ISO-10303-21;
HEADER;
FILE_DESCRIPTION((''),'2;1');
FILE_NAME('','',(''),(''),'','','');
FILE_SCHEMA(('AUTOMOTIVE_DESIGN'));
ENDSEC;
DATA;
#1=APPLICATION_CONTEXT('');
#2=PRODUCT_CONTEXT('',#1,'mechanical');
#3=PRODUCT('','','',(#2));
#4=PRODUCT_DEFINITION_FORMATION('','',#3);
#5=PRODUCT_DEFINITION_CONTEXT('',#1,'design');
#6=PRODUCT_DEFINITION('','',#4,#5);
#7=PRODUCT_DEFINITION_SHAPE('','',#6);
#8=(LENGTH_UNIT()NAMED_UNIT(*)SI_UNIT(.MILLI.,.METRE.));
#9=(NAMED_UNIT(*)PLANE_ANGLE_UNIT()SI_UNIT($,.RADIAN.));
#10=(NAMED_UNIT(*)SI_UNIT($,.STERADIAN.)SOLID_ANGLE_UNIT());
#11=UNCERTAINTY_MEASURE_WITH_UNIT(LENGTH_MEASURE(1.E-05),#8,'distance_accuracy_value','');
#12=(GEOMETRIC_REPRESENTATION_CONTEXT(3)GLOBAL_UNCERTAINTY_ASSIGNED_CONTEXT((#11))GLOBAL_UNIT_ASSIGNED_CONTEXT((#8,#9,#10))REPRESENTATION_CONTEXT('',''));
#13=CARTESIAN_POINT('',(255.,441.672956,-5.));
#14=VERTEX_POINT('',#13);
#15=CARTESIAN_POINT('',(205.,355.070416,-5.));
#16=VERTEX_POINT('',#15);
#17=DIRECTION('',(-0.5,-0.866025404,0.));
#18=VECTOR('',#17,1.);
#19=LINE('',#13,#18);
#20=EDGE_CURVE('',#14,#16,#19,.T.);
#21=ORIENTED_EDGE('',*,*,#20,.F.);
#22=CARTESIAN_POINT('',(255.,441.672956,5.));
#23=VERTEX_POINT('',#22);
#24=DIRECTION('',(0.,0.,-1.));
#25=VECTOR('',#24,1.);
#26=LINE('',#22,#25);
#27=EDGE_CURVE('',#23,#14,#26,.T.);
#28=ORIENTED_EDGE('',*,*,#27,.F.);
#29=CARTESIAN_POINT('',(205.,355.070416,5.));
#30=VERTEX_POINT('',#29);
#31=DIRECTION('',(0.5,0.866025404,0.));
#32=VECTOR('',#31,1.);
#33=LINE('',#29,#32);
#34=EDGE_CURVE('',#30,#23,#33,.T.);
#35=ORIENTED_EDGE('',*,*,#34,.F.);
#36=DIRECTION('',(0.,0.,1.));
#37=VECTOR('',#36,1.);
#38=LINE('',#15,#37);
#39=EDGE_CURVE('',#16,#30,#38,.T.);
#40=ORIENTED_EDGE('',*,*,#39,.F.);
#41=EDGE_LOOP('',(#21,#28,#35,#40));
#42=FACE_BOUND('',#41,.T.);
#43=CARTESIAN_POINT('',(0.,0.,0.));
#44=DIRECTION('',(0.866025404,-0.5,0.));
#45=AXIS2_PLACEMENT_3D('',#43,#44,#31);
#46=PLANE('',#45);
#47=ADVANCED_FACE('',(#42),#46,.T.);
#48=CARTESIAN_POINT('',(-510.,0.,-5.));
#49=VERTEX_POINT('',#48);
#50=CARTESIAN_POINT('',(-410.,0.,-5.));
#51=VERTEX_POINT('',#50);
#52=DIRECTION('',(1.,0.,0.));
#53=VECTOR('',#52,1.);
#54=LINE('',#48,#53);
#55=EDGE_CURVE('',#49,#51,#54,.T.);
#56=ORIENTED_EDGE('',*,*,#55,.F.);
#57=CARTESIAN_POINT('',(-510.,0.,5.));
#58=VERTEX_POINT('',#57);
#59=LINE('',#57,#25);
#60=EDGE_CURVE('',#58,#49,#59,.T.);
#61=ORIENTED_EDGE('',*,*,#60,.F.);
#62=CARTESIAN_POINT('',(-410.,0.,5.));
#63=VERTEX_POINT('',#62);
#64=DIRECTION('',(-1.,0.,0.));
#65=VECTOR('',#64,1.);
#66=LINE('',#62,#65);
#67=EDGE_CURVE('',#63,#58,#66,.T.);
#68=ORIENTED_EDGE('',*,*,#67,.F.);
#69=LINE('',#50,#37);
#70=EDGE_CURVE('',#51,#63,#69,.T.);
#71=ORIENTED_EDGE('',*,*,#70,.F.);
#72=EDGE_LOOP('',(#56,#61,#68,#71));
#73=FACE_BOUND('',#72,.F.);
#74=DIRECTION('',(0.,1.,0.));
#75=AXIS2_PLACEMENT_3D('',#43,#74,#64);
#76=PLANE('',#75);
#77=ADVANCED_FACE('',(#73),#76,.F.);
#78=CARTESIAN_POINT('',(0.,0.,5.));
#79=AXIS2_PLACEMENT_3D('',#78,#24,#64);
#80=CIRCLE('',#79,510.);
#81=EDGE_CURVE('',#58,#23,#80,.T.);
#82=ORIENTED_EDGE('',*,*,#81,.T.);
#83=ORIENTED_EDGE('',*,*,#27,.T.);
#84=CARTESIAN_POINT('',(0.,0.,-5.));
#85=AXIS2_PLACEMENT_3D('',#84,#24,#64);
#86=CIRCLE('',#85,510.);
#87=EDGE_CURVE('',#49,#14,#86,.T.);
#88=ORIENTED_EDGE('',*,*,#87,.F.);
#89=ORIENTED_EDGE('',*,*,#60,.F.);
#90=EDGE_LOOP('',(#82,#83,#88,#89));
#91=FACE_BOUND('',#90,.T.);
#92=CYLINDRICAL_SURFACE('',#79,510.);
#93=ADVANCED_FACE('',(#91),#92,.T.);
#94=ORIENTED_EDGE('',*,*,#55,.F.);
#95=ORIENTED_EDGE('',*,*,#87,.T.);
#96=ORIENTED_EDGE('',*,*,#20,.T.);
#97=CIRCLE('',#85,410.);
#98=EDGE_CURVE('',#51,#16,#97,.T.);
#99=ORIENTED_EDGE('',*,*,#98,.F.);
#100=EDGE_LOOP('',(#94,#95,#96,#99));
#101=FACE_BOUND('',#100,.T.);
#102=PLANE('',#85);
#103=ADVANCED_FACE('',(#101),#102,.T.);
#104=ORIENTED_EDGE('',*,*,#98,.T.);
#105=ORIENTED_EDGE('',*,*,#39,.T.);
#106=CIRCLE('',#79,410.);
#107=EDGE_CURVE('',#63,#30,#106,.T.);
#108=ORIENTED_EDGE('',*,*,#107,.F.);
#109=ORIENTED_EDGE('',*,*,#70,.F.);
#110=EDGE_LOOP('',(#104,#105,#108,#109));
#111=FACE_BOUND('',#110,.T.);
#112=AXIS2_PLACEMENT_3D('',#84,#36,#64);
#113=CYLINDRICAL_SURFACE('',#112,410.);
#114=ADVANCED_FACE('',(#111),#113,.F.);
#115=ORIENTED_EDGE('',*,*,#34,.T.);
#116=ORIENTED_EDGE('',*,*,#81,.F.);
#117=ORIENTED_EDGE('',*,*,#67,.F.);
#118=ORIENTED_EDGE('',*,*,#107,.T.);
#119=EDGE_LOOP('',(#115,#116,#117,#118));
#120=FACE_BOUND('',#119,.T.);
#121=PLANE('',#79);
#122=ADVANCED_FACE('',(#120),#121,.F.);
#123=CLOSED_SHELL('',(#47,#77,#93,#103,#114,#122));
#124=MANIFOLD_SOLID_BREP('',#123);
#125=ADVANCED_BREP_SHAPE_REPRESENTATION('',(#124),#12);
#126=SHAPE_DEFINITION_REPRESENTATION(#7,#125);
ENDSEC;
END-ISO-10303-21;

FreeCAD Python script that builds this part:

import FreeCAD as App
import Part
import Sketcher
from FreeCAD import Vector
Q = App.Units.Quantity

doc = App.newDocument("Part")
params = doc.addObject("Spreadsheet::Sheet", "Params")
for row, (alias, value) in enumerate([
    ("sketch1_width", "3.937 in"),
    ("revolution_angle", "120 deg"),
], start=1):
    params.set(f"A{row}", alias)
    params.set(f"B{row}", "=" + value)
    params.setAlias(f"B{row}", alias)

body = doc.addObject("PartDesign::Body", "Body")

# Sketch on XZ plane
sketch1 = doc.addObject("Sketcher::SketchObject", "Sketch")
body.addObject(sketch1)
sketch1.AttachmentSupport = (doc.XZ_Plane, [""])
sketch1.MapMode = "FlatFace"
sketch1.addGeometry([
    Part.LineSegment(Vector(-510, 5, 0), Vector(-410, 5, 0)),
    Part.LineSegment(Vector(-410, 5, 0), Vector(-410, -5, 0)),
    Part.LineSegment(Vector(-410, -5, 0), Vector(-510, -5, 0)),
    Part.LineSegment(Vector(-510, -5, 0), Vector(-510, 5, 0)),
], False)
sketch1.addConstraint([
    Sketcher.Constraint("Coincident", 0, 2, 1, 1),
    Sketcher.Constraint("Coincident", 1, 2, 2, 1),
    Sketcher.Constraint("Coincident", 2, 2, 3, 1),
    Sketcher.Constraint("Coincident", 3, 2, 0, 1),
    Sketcher.Constraint("Horizontal", 0),
    Sketcher.Constraint("Vertical", 1),
    Sketcher.Constraint("Horizontal", 2),
    Sketcher.Constraint("Vertical", 3),
    Sketcher.Constraint("DistanceX", 0, 1, 0, 2, Q("3.937 in")),
    Sketcher.Constraint("DistanceY", 1, 2, 1, 1, Q("0.3937 in")),
    Sketcher.Constraint("DistanceX", 0, 2, -1, 1, 410.0),
    Sketcher.Constraint("DistanceY", -1, 1, 0, 2, 5.0),
])
sketch1.setExpression("Constraints[8]", "Params.sketch1_width")
revolution = doc.addObject("PartDesign::Revolution", "Revolution")
body.addObject(revolution)
revolution.Profile = sketch1
revolution.ReferenceAxis = (sketch1, ["V_Axis"])
revolution.setExpression("Angle", "Params.revolution_angle")
revolution.Reversed = True

doc.recompute()
